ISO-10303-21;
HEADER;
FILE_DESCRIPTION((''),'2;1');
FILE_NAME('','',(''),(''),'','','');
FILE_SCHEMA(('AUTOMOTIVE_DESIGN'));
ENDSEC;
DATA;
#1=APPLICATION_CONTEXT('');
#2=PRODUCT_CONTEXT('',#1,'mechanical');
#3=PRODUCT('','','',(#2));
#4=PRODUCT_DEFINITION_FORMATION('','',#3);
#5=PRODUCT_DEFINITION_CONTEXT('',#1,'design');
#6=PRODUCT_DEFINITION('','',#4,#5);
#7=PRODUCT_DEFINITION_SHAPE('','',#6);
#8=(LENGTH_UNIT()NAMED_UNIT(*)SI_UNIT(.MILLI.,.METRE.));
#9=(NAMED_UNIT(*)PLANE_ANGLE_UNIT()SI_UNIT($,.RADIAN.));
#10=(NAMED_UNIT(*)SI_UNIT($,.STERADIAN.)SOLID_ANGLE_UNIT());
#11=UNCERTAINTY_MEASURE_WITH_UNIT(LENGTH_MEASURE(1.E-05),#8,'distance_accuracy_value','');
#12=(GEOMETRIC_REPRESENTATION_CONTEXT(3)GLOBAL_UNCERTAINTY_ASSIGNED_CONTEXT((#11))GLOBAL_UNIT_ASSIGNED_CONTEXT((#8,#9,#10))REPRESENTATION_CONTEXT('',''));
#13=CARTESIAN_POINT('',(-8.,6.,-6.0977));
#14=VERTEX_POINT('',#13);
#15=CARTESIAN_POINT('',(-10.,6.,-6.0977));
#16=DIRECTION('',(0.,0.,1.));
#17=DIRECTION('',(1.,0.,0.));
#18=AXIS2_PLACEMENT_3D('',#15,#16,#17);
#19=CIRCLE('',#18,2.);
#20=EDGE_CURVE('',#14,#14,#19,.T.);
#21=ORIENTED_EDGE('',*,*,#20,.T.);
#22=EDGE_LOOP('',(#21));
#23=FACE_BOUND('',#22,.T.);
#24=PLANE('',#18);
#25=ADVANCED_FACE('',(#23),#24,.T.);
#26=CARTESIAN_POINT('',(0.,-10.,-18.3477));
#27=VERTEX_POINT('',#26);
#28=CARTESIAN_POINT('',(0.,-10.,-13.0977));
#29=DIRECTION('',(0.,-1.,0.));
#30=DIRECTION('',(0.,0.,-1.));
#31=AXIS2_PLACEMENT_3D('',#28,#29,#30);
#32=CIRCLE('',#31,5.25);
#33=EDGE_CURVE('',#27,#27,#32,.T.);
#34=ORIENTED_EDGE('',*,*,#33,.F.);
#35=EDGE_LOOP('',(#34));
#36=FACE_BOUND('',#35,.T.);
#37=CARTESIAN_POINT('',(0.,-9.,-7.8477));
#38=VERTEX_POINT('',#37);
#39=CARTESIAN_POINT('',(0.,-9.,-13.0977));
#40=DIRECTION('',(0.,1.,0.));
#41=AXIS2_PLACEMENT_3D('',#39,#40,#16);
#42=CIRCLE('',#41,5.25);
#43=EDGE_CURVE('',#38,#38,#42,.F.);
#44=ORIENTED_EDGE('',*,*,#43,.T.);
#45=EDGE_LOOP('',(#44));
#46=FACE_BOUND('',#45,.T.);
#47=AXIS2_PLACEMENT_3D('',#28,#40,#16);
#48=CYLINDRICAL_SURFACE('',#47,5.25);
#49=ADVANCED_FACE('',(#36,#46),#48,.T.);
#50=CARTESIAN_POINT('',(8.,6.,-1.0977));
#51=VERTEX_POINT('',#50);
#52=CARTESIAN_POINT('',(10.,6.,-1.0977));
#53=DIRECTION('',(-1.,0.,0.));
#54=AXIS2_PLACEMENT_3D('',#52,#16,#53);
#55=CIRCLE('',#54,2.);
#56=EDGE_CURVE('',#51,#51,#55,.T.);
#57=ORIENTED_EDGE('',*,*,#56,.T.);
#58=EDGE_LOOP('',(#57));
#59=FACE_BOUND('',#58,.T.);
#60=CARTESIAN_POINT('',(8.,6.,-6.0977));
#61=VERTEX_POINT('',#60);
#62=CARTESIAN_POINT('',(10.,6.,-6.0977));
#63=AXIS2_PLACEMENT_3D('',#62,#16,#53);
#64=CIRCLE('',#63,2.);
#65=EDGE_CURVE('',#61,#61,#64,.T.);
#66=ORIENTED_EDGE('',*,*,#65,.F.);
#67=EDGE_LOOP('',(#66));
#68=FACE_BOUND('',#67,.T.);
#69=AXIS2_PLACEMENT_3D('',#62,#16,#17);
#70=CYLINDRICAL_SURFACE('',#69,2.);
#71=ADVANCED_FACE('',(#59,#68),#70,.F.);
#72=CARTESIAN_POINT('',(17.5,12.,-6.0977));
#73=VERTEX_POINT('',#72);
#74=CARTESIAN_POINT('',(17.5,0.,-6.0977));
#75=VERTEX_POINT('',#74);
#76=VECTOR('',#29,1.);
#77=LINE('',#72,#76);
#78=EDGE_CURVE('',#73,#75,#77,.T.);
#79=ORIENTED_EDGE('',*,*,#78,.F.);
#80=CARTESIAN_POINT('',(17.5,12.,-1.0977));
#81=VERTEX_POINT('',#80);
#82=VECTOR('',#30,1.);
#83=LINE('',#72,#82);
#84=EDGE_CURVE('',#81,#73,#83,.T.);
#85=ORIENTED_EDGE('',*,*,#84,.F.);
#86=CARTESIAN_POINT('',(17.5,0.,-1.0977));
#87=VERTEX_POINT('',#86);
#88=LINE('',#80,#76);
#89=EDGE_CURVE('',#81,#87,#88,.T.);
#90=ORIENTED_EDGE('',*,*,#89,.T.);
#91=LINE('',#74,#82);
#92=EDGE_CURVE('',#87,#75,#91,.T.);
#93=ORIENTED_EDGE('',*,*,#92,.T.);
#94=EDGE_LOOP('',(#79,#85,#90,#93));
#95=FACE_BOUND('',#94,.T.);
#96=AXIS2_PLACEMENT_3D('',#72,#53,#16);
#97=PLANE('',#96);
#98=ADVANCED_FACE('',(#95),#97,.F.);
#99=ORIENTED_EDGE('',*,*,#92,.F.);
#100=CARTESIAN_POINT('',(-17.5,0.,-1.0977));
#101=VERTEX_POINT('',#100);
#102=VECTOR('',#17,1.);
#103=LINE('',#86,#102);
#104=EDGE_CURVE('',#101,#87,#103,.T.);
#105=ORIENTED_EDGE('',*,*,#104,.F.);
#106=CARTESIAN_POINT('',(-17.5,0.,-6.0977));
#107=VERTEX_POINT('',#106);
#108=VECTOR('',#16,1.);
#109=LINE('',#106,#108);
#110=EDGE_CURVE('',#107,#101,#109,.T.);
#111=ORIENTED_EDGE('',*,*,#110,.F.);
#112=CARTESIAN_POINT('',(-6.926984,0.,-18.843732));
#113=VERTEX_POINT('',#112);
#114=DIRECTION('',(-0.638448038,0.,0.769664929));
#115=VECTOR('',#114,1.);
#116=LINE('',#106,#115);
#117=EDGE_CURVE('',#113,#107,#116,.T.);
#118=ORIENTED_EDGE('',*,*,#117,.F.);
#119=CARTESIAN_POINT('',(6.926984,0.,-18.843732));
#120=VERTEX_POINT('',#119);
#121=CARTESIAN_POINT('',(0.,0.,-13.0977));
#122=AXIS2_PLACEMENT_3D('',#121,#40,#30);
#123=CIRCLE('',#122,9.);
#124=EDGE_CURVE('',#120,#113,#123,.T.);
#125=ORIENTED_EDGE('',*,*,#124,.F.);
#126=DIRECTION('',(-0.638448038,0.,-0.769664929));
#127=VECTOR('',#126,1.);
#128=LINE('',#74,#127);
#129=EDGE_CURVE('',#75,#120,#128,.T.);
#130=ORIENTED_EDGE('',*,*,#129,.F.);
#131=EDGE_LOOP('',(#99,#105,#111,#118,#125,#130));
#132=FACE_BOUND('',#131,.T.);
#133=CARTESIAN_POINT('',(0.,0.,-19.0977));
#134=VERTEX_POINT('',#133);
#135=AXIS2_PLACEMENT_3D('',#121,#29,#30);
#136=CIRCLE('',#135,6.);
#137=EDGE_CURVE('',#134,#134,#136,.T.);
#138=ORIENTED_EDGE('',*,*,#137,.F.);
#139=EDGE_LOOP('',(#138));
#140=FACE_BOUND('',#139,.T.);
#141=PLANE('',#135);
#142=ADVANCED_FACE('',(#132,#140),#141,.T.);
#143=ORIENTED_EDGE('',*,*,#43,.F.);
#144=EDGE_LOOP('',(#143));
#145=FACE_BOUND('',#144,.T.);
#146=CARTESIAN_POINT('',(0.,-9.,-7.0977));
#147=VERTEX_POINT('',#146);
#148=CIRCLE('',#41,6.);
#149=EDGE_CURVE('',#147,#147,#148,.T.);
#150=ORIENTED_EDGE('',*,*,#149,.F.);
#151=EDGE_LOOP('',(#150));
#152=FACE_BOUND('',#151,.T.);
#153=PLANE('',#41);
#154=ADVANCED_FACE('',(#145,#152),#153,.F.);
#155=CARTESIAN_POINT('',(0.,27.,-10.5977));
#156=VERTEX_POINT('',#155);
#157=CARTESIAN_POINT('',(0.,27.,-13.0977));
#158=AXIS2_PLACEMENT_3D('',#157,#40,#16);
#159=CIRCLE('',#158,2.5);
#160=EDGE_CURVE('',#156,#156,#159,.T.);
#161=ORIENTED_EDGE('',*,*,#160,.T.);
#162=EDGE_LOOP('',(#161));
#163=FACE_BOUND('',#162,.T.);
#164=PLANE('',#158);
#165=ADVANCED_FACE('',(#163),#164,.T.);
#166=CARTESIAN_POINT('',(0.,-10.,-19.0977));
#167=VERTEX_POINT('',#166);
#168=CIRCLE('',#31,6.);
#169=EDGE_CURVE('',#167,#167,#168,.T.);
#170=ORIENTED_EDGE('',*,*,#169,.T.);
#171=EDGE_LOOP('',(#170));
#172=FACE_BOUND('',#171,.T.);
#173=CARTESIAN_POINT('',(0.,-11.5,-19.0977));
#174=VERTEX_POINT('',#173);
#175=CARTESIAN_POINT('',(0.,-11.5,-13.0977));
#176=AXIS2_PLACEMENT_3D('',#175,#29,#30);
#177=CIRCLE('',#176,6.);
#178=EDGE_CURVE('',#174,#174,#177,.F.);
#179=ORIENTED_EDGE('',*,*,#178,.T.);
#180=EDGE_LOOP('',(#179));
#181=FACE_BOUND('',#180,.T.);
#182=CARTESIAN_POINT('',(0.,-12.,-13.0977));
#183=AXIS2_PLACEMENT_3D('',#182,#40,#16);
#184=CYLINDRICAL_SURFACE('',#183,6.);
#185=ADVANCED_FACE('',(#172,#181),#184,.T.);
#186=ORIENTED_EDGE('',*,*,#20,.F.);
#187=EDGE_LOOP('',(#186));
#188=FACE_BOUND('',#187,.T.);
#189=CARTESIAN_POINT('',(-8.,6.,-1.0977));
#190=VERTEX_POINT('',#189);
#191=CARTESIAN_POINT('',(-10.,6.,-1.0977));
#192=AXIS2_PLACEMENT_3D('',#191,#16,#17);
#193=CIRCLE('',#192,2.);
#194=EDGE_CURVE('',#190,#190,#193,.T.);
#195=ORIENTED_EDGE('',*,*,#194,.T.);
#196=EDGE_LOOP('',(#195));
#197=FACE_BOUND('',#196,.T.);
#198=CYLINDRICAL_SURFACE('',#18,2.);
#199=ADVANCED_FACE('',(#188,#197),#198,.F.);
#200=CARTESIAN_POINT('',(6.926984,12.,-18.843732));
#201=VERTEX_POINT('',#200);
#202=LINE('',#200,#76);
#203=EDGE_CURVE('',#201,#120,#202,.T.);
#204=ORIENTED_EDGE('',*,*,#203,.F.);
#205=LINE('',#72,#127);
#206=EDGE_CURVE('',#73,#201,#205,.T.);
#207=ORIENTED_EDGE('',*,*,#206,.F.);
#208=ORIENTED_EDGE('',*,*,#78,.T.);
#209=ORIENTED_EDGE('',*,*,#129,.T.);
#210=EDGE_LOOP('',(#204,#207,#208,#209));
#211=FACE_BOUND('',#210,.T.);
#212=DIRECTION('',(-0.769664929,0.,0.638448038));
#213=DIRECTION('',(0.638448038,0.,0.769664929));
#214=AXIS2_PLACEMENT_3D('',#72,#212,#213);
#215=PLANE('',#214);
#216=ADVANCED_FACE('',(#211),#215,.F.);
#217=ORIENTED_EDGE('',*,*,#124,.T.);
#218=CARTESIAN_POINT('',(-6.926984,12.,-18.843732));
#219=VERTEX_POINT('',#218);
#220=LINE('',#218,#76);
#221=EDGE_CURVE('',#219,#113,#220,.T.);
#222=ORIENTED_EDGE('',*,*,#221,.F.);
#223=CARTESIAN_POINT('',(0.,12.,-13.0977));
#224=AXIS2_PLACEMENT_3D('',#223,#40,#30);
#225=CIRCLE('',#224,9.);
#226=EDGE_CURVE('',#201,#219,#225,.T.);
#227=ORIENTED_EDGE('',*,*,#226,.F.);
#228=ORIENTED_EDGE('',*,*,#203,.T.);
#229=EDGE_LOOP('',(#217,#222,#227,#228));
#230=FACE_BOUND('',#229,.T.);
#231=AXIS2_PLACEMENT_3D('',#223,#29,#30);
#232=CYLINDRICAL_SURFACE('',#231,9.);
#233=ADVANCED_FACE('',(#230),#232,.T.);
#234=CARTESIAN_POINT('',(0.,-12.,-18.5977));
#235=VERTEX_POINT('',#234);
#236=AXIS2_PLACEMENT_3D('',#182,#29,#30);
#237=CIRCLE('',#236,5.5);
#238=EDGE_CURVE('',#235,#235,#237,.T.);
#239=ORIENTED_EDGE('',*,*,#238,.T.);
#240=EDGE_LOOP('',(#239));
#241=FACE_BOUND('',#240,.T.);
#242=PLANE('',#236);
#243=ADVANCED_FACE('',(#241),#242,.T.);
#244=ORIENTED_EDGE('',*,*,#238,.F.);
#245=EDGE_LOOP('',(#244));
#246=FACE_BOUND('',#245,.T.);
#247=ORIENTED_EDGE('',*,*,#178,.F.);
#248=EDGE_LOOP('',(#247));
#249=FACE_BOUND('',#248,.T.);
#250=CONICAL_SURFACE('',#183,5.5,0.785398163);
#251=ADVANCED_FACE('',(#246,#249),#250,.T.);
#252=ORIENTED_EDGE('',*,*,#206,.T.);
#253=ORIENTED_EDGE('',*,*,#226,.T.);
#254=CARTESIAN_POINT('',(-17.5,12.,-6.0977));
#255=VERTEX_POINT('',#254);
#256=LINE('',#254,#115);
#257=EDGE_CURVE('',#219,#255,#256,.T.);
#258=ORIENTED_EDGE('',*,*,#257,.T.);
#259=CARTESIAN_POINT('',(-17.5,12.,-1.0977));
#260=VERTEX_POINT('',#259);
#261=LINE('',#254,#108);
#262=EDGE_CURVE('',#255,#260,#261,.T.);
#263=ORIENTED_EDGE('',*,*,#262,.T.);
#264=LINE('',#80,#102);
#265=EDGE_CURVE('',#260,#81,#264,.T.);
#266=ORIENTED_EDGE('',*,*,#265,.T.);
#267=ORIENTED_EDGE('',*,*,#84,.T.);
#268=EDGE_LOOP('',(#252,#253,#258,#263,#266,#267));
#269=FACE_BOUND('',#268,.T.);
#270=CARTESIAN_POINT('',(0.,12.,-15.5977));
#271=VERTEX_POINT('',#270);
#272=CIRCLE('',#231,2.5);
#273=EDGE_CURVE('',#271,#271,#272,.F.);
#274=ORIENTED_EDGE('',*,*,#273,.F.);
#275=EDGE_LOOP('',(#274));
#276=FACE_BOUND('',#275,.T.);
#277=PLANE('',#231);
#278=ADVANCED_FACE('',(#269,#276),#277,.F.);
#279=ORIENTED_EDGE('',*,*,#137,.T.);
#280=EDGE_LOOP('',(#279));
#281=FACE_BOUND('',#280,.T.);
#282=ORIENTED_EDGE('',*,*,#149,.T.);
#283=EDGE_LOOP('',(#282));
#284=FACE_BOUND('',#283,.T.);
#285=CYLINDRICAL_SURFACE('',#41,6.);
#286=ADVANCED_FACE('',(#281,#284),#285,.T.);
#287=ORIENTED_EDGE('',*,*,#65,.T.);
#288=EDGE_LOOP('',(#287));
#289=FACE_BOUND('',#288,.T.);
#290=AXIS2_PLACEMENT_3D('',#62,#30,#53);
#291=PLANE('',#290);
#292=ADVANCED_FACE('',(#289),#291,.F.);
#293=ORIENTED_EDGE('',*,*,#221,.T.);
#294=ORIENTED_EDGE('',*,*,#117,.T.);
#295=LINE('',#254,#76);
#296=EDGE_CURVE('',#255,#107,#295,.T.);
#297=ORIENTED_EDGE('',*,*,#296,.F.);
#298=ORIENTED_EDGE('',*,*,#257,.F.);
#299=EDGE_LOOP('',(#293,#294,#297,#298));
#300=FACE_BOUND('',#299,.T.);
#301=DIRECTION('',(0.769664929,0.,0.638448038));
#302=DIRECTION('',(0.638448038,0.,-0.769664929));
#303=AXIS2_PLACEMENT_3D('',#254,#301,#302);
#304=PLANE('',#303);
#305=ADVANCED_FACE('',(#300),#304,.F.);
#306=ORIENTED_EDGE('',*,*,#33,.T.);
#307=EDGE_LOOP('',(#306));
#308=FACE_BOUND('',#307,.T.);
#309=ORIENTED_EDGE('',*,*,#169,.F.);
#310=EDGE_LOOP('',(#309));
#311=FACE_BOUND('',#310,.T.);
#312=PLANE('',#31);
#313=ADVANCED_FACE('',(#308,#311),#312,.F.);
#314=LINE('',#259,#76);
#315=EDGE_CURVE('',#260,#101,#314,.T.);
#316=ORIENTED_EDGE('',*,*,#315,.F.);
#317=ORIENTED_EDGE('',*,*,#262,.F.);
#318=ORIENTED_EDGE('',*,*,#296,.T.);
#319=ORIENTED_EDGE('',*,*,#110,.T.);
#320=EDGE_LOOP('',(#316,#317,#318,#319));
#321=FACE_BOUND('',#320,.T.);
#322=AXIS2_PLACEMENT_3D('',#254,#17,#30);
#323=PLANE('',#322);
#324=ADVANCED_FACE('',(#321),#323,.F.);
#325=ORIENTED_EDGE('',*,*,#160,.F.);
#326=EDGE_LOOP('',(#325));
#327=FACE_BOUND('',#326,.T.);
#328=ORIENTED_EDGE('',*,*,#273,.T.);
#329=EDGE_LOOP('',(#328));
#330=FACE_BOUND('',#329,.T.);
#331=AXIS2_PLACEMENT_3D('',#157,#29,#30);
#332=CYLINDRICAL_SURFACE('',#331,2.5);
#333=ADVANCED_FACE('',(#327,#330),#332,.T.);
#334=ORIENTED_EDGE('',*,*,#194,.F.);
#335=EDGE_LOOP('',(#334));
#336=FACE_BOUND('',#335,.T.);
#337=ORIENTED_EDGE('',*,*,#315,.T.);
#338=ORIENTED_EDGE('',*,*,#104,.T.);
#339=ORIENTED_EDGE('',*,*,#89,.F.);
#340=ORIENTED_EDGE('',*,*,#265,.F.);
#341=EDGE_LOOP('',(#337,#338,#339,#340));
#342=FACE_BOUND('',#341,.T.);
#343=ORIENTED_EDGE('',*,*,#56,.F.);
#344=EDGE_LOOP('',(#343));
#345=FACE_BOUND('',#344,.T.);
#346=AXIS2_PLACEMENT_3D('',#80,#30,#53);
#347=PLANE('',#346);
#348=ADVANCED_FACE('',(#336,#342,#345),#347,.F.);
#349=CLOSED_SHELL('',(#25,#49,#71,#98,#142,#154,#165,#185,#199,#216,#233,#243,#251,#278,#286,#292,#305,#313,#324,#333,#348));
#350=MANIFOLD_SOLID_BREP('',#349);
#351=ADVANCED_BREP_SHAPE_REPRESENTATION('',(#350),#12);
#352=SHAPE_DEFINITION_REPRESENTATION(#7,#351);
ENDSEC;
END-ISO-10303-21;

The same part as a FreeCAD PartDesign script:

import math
import FreeCAD as App
import Part
import Sketcher

V = App.Vector
Q = App.Units.Quantity


def edges_at(feature, points):
    """Names of the edges that pass closest to the given points."""
    edges = feature.Shape.Edges
    near = lambda p: min(range(len(edges)), key=lambda i: edges[i].distToShape(Part.Vertex(*p))[0])
    return sorted({f"Edge{near(p) + 1}" for p in points})

doc = App.newDocument("Part")
body = doc.addObject("PartDesign::Body", "Body")

# Sketch on XZ plane
sketch1 = doc.addObject("Sketcher::SketchObject", "Sketch")
body.addObject(sketch1)
sketch1.AttachmentSupport = (doc.XZ_Plane, [""])
sketch1.MapMode = "FlatFace"
sketch1.addGeometry([
    Part.LineSegment(V(-7, -19, 0), V(-18, -6, 0)),  # 0
    Part.LineSegment(V(-18, -6, 0), V(-18, -1, 0)),  # 1
    Part.LineSegment(V(-18, -1, 0), V(18, -1, 0)),  # 2
    Part.LineSegment(V(18, -1, 0), V(18, -6, 0)),  # 3
    Part.LineSegment(V(18, -6, 0), V(7, -19, 0)),  # 4
    Part.ArcOfCircle(Part.Circle(V(0, -13, 0), V(0, 0, 1), 9), math.radians(-140), math.radians(-40)),  # 5
], False)
sketch1.addConstraint([
    Sketcher.Constraint("Coincident", 0, 2, 1, 1),
    Sketcher.Constraint("Coincident", 1, 2, 2, 1),
    Sketcher.Constraint("Coincident", 2, 2, 3, 1),
    Sketcher.Constraint("Coincident", 3, 2, 4, 1),
    Sketcher.Constraint("Tangent", 4, 2, 5, 2),
    Sketcher.Constraint("Tangent", 5, 1, 0, 1),
    Sketcher.Constraint("Vertical", 1),
    Sketcher.Constraint("Horizontal", 2),
    Sketcher.Constraint("Vertical", 3),
    Sketcher.Constraint("Symmetric", 0, 2, 3, 2, -2),
    Sketcher.Constraint("PointOnObject", 5, 3, -2),
    Sketcher.Constraint("Radius", 5, Q("9 mm")),
    Sketcher.Constraint("DistanceX", 2, 1, 2, 2, Q("35 mm")),
    Sketcher.Constraint("DistanceY", 1, 1, 1, 2, Q("5 mm")),
    Sketcher.Constraint("DistanceY", 5, 3, 0, 2, Q("7 mm")),
    Sketcher.Constraint("DistanceY", 5, 3, -1, 1, Q("13.0977 mm")),
])
pad1 = doc.addObject("PartDesign::Pad", "Pad")
body.addObject(pad1)
pad1.Profile = sketch1
pad1.Length = 12
pad1.Reversed = True

# Sketch on XZ plane
sketch2 = doc.addObject("Sketcher::SketchObject", "Sketch001")
body.addObject(sketch2)
sketch2.AttachmentSupport = (doc.XZ_Plane, [""])
sketch2.MapMode = "FlatFace"
sketch2.addGeometry(Part.Circle(V(0, -13, 0), V(0, 0, 1), 6), False)
sketch2.addConstraint([
    Sketcher.Constraint("PointOnObject", 0, 3, -2),
    Sketcher.Constraint("Diameter", 0, Q("12 mm")),
    Sketcher.Constraint("DistanceY", 0, 3, -1, 1, Q("13.0977 mm")),
])
pad2 = doc.addObject("PartDesign::Pad", "Pad001")
body.addObject(pad2)
pad2.Profile = sketch2
pad2.Length = 9

# Sketch on XZ plane
sketch3 = doc.addObject("Sketcher::SketchObject", "Sketch002")
body.addObject(sketch3)
sketch3.AttachmentSupport = (doc.XZ_Plane, [""])
sketch3.MapMode = "FlatFace"
sketch3.AttachmentOffset = App.Placement(V(0, 0, 9), App.Rotation())
sketch3.addGeometry(Part.Circle(V(0, -13, 0), V(0, 0, 1), 5), False)
sketch3.addConstraint([
    Sketcher.Constraint("PointOnObject", 0, 3, -2),
    Sketcher.Constraint("Diameter", 0, Q("10.5 mm")),
    Sketcher.Constraint("DistanceY", 0, 3, -1, 1, Q("13.0977 mm")),
])
pad3 = doc.addObject("PartDesign::Pad", "Pad002")
body.addObject(pad3)
pad3.Profile = sketch3
pad3.Length = 1

# Sketch on XZ plane
sketch4 = doc.addObject("Sketcher::SketchObject", "Sketch003")
body.addObject(sketch4)
sketch4.AttachmentSupport = (doc.XZ_Plane, [""])
sketch4.MapMode = "FlatFace"
sketch4.AttachmentOffset = App.Placement(V(0, 0, 10), App.Rotation())
sketch4.addGeometry(Part.Circle(V(0, -13, 0), V(0, 0, 1), 6), False)
sketch4.addConstraint([
    Sketcher.Constraint("PointOnObject", 0, 3, -2),
    Sketcher.Constraint("Diameter", 0, Q("12 mm")),
    Sketcher.Constraint("DistanceY", 0, 3, -1, 1, Q("13.0977 mm")),
])
pad4 = doc.addObject("PartDesign::Pad", "Pad003")
body.addObject(pad4)
pad4.Profile = sketch4
pad4.Length = 2
doc.recompute()

chamfer = doc.addObject("PartDesign::Chamfer", "Chamfer")
body.addObject(chamfer)
chamfer.Base = (pad4, edges_at(pad4, [(0, -12, -19.098)]))
chamfer.Size = 0.5

# Sketch on XY plane
sketch5 = doc.addObject("Sketcher::SketchObject", "Sketch004")
body.addObject(sketch5)
sketch5.AttachmentSupport = (doc.XY_Plane, [""])
sketch5.MapMode = "FlatFace"
sketch5.AttachmentOffset = App.Placement(V(0, 0, -1.0977), App.Rotation())
sketch5.addGeometry([
    Part.Circle(V(-10, 6, 0), V(0, 0, 1), 2),
    Part.Circle(V(10, 6, 0), V(0, 0, 1), 2),
], False)
sketch5.addConstraint([
    Sketcher.Constraint("Equal", 0, 1),
    Sketcher.Constraint("Symmetric", 0, 3, 1, 3, -2),
    Sketcher.Constraint("Diameter", 0, Q("4 mm")),
    Sketcher.Constraint("DistanceX", 0, 3, -1, 1, Q("10 mm")),
    Sketcher.Constraint("DistanceY", -1, 1, 0, 3, Q("6 mm")),
])
pocket1 = doc.addObject("PartDesign::Pocket", "Pocket")
body.addObject(pocket1)
pocket1.Profile = sketch5
pocket1.Length = 5

# Sketch on XZ plane
sketch6 = doc.addObject("Sketcher::SketchObject", "Sketch005")
body.addObject(sketch6)
sketch6.AttachmentSupport = (doc.XZ_Plane, [""])
sketch6.MapMode = "FlatFace"
sketch6.AttachmentOffset = App.Placement(V(0, 0, -12), App.Rotation())
sketch6.addGeometry(Part.Circle(V(0, -13.1, 0), V(0, 0, 1), 2.5), False)
sketch6.addConstraint([
    Sketcher.Constraint("PointOnObject", 0, 3, -2),
    Sketcher.Constraint("Diameter", 0, Q("5 mm")),
    Sketcher.Constraint("DistanceY", 0, 3, -1, 1, Q("13.0977 mm")),
])
pad5 = doc.addObject("PartDesign::Pad", "Pad004")
body.addObject(pad5)
pad5.Profile = sketch6
pad5.Length = 15
pad5.Reversed = True

doc.recompute()
